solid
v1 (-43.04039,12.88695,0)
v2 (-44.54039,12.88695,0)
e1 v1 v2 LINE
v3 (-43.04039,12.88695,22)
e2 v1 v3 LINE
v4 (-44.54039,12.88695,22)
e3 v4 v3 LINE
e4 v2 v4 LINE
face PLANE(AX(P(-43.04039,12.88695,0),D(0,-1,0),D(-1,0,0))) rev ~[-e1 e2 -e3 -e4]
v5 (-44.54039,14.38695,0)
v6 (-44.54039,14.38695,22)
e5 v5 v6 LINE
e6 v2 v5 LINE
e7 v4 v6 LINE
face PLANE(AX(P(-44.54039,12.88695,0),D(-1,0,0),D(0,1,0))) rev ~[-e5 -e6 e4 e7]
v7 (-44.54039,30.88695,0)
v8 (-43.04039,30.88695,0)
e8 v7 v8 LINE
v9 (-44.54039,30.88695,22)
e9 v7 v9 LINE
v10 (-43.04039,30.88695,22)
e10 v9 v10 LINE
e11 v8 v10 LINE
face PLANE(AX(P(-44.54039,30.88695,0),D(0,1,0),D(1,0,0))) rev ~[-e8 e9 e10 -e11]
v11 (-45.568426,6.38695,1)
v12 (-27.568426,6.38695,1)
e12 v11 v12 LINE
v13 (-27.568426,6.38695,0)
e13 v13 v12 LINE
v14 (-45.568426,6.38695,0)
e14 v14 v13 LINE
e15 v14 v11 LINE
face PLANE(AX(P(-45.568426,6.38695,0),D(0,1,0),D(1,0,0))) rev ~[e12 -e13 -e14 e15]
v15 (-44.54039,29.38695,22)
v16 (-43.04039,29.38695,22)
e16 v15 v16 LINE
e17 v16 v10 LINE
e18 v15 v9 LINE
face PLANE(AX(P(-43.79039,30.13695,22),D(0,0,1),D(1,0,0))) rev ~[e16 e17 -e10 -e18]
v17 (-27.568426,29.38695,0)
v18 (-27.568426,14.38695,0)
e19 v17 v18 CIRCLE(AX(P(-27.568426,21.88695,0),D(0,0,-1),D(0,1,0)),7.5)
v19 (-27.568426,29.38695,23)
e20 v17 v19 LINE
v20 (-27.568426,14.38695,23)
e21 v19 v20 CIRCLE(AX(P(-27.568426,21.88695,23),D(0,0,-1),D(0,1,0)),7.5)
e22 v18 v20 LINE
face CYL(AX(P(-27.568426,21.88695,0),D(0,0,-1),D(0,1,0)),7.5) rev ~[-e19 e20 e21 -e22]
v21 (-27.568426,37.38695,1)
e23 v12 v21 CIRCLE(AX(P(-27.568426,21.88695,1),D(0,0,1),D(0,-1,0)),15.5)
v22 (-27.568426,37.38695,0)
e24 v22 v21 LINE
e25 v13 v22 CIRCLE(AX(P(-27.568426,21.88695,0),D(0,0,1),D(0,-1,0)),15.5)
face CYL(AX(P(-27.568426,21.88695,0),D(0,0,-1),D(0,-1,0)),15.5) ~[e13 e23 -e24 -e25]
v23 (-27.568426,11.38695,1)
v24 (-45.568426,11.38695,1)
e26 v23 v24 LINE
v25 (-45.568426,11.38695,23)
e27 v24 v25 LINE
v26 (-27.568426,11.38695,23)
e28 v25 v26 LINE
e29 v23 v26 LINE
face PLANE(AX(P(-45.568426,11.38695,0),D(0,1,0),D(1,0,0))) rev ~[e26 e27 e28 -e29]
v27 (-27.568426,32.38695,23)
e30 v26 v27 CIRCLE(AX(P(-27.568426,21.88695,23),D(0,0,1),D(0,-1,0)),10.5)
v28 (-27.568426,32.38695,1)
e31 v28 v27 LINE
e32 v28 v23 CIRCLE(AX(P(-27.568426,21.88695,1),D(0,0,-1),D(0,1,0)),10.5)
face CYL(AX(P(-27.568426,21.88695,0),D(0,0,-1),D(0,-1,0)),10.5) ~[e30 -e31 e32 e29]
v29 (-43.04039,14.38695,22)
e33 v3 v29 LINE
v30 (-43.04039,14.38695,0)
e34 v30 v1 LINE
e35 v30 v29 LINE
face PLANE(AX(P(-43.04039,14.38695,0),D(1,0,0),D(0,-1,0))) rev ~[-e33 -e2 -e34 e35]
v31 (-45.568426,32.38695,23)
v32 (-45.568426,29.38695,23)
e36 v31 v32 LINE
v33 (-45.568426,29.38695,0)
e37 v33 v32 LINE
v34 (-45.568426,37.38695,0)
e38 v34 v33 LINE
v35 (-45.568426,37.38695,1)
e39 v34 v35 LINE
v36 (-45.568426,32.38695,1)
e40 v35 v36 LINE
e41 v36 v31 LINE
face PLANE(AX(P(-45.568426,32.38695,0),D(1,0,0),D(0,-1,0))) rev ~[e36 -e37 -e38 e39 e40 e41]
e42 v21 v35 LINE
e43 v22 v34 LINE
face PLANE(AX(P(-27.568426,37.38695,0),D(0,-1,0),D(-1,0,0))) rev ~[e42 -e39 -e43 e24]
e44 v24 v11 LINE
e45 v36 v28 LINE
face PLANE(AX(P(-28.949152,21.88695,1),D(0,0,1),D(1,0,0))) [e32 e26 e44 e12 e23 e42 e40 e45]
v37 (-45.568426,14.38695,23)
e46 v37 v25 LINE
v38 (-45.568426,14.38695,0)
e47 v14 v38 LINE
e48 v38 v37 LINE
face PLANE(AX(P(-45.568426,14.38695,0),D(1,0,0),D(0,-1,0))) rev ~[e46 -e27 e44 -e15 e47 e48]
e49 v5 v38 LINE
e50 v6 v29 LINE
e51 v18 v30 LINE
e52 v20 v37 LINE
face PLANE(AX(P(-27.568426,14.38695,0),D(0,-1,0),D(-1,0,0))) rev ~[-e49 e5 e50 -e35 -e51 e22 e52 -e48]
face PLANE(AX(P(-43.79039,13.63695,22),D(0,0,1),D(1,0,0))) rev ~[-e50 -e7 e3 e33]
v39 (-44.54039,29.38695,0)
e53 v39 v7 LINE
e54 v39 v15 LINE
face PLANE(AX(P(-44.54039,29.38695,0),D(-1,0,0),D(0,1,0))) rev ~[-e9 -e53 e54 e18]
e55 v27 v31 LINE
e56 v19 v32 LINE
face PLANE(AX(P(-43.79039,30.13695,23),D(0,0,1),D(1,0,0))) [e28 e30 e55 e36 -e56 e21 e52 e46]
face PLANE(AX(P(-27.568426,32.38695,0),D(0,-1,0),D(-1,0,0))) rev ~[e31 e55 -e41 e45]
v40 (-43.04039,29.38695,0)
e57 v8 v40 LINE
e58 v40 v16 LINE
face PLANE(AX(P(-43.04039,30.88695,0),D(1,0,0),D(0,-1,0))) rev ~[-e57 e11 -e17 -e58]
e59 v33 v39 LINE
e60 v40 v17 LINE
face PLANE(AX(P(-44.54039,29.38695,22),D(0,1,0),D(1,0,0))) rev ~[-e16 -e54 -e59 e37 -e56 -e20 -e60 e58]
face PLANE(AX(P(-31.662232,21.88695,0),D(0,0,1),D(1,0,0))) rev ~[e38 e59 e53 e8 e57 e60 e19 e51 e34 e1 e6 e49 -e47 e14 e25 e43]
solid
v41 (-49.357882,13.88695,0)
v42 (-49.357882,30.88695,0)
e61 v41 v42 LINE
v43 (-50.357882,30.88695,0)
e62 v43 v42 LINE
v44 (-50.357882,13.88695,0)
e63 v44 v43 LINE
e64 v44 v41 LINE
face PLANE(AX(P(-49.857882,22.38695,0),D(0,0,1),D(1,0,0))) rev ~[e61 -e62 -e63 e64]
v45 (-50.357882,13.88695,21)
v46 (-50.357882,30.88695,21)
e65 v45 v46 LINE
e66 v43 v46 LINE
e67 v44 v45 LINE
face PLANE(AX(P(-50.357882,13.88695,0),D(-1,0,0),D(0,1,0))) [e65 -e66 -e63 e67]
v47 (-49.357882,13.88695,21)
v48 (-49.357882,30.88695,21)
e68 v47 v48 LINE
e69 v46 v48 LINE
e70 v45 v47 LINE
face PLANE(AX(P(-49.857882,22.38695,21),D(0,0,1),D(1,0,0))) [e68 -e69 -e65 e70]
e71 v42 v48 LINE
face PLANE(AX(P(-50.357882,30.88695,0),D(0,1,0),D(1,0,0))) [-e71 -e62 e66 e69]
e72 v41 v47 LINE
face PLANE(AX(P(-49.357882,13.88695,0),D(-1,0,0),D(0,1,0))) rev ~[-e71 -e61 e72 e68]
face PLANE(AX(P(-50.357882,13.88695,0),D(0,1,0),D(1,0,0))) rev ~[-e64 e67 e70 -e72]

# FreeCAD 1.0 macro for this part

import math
import FreeCAD as App
import Part
import Sketcher


def add_polygon(sketch, points):
    """Adds a closed chain of lines whose ends are joined by coincident constraints."""
    first, n = sketch.GeometryCount, len(points)
    for a, b in zip(points, points[1:] + points[:1]):
        sketch.addGeometry(Part.LineSegment(App.Vector(*a, 0), App.Vector(*b, 0)), False)
    for i in range(n):
        sketch.addConstraint(Sketcher.Constraint("Coincident", first + i, 2, first + (i + 1) % n, 1))

doc = App.newDocument("Part")
body = doc.addObject("PartDesign::Body", "Body")

# Sketch on XY plane
sketch1 = doc.addObject("Sketcher::SketchObject", "Sketch")
body.addObject(sketch1)
sketch1.AttachmentSupport = (doc.XY_Plane, [""])
sketch1.MapMode = "FlatFace"
sketch1.addGeometry(Part.LineSegment(App.Vector(-46, 37, 0), App.Vector(-46, 32, 0)), False)
sketch1.addGeometry(Part.LineSegment(App.Vector(-46, 32, 0), App.Vector(-28, 32, 0)), False)
sketch1.addGeometry(Part.ArcOfCircle(Part.Circle(App.Vector(-28, 22, 0), App.Vector(0, 0, 1), 10), math.radians(-90), math.radians(90)), False)
sketch1.addGeometry(Part.LineSegment(App.Vector(-28, 11, 0), App.Vector(-46, 11, 0)), False)
sketch1.addGeometry(Part.LineSegment(App.Vector(-46, 11, 0), App.Vector(-46, 6, 0)), False)
sketch1.addGeometry(Part.LineSegment(App.Vector(-46, 6, 0), App.Vector(-28, 6, 0)), False)
sketch1.addGeometry(Part.ArcOfCircle(Part.Circle(App.Vector(-28, 22, 0), App.Vector(0, 0, 1), 16), math.radians(-90), math.radians(90)), False)
sketch1.addGeometry(Part.LineSegment(App.Vector(-28, 37, 0), App.Vector(-46, 37, 0)), False)
sketch1.addConstraint(Sketcher.Constraint("Coincident", 0, 2, 1, 1))
sketch1.addConstraint(Sketcher.Constraint("Tangent", 1, 2, 2, 2))
sketch1.addConstraint(Sketcher.Constraint("Tangent", 2, 1, 3, 1))
sketch1.addConstraint(Sketcher.Constraint("Coincident", 3, 2, 4, 1))
sketch1.addConstraint(Sketcher.Constraint("Coincident", 4, 2, 5, 1))
sketch1.addConstraint(Sketcher.Constraint("Tangent", 5, 2, 6, 1))
sketch1.addConstraint(Sketcher.Constraint("Tangent", 6, 2, 7, 1))
sketch1.addConstraint(Sketcher.Constraint("Coincident", 7, 2, 0, 1))
sketch1.addConstraint(Sketcher.Constraint("Vertical", 0))
sketch1.addConstraint(Sketcher.Constraint("Horizontal", 1))
sketch1.addConstraint(Sketcher.Constraint("Horizontal", 3))
sketch1.addConstraint(Sketcher.Constraint("Vertical", 4))
sketch1.addConstraint(Sketcher.Constraint("Horizontal", 5))
sketch1.addConstraint(Sketcher.Constraint("Horizontal", 7))
sketch1.addConstraint(Sketcher.Constraint("Coincident", 6, 3, 2, 3))
sketch1.addConstraint(Sketcher.Constraint("Vertical", 0, 2, 3, 2))
sketch1.addConstraint(Sketcher.Constraint("Radius", 2, 10.5))
sketch1.addConstraint(Sketcher.Constraint("Radius", 6, 15.5))
sketch1.addConstraint(Sketcher.Constraint("DistanceX", 1, 1, 1, 2, 18.0))
sketch1.addConstraint(Sketcher.Constraint("DistanceY", -1, 1, 2, 3, 21.88695))
sketch1.addConstraint(Sketcher.Constraint("DistanceX", 2, 3, -1, 1, 27.568426))
pad1 = doc.addObject("PartDesign::Pad", "Pad")
body.addObject(pad1)
pad1.Profile = sketch1
pad1.Length = 1

# Sketch on XY plane
sketch2 = doc.addObject("Sketcher::SketchObject", "Sketch001")
body.addObject(sketch2)
sketch2.AttachmentSupport = (doc.XY_Plane, [""])
sketch2.MapMode = "FlatFace"
sketch2.addGeometry(Part.LineSegment(App.Vector(-45.6, 32.4, 0), App.Vector(-45.6, 29.4, 0)), False)
sketch2.addGeometry(Part.LineSegment(App.Vector(-45.6, 29.4, 0), App.Vector(-44.5, 29.4, 0)), False)
sketch2.addGeometry(Part.LineSegment(App.Vector(-44.5, 29.4, 0), App.Vector(-44.5, 30.9, 0)), False)
sketch2.addGeometry(Part.LineSegment(App.Vector(-44.5, 30.9, 0), App.Vector(-43, 30.9, 0)), False)
sketch2.addGeometry(Part.LineSegment(App.Vector(-43, 30.9, 0), App.Vector(-43, 29.4, 0)), False)
sketch2.addGeometry(Part.LineSegment(App.Vector(-43, 29.4, 0), App.Vector(-27.6, 29.4, 0)), False)
sketch2.addGeometry(Part.ArcOfCircle(Part.Circle(App.Vector(-27.6, 21.9, 0), App.Vector(0, 0, 1), 7.5), math.radians(-90), math.radians(90)), False)
sketch2.addGeometry(Part.LineSegment(App.Vector(-27.6, 14.4, 0), App.Vector(-43, 14.4, 0)), False)
sketch2.addGeometry(Part.LineSegment(App.Vector(-43, 14.4, 0), App.Vector(-43, 12.9, 0)), False)
sketch2.addGeometry(Part.LineSegment(App.Vector(-43, 12.9, 0), App.Vector(-44.5, 12.9, 0)), False)
sketch2.addGeometry(Part.LineSegment(App.Vector(-44.5, 12.9, 0), App.Vector(-44.5, 14.4, 0)), False)
sketch2.addGeometry(Part.LineSegment(App.Vector(-44.5, 14.4, 0), App.Vector(-45.6, 14.4, 0)), False)
sketch2.addGeometry(Part.LineSegment(App.Vector(-45.6, 14.4, 0), App.Vector(-45.6, 11.4, 0)), False)
sketch2.addGeometry(Part.LineSegment(App.Vector(-45.6, 11.4, 0), App.Vector(-27.6, 11.4, 0)), False)
sketch2.addGeometry(Part.ArcOfCircle(Part.Circle(App.Vector(-27.6, 21.9, 0), App.Vector(0, 0, 1), 10.5), math.radians(-90), math.radians(90)), False)
sketch2.addGeometry(Part.LineSegment(App.Vector(-27.6, 32.4, 0), App.Vector(-45.6, 32.4, 0)), False)
sketch2.addConstraint(Sketcher.Constraint("Coincident", 0, 2, 1, 1))
sketch2.addConstraint(Sketcher.Constraint("Coincident", 1, 2, 2, 1))
sketch2.addConstraint(Sketcher.Constraint("Coincident", 2, 2, 3, 1))
sketch2.addConstraint(Sketcher.Constraint("Coincident", 3, 2, 4, 1))
sketch2.addConstraint(Sketcher.Constraint("Coincident", 4, 2, 5, 1))
sketch2.addConstraint(Sketcher.Constraint("Tangent", 5, 2, 6, 2))
sketch2.addConstraint(Sketcher.Constraint("Tangent", 6, 1, 7, 1))
sketch2.addConstraint(Sketcher.Constraint("Coincident", 7, 2, 8, 1))
sketch2.addConstraint(Sketcher.Constraint("Coincident", 8, 2, 9, 1))
sketch2.addConstraint(Sketcher.Constraint("Coincident", 9, 2, 10, 1))
sketch2.addConstraint(Sketcher.Constraint("Coincident", 10, 2, 11, 1))
sketch2.addConstraint(Sketcher.Constraint("Coincident", 11, 2, 12, 1))
sketch2.addConstraint(Sketcher.Constraint("Coincident", 12, 2, 13, 1))
sketch2.addConstraint(Sketcher.Constraint("Tangent", 13, 2, 14, 1))
sketch2.addConstraint(Sketcher.Constraint("Tangent", 14, 2, 15, 1))
sketch2.addConstraint(Sketcher.Constraint("Coincident", 15, 2, 0, 1))
sketch2.addConstraint(Sketcher.Constraint("Vertical", 0))
sketch2.addConstraint(Sketcher.Constraint("Horizontal", 1))
sketch2.addConstraint(Sketcher.Constraint("Vertical", 2))
sketch2.addConstraint(Sketcher.Constraint("Horizontal", 3))
sketch2.addConstraint(Sketcher.Constraint("Vertical", 4))
sketch2.addConstraint(Sketcher.Constraint("Horizontal", 5))
sketch2.addConstraint(Sketcher.Constraint("Horizontal", 7))
sketch2.addConstraint(Sketcher.Constraint("Vertical", 8))
sketch2.addConstraint(Sketcher.Constraint("Horizontal", 9))
sketch2.addConstraint(Sketcher.Constraint("Vertical", 10))
sketch2.addConstraint(Sketcher.Constraint("Horizontal", 11))
sketch2.addConstraint(Sketcher.Constraint("Vertical", 12))
sketch2.addConstraint(Sketcher.Constraint("Horizontal", 13))
sketch2.addConstraint(Sketcher.Constraint("Horizontal", 15))
sketch2.addConstraint(Sketcher.Constraint("Coincident", 14, 3, 6, 3))
sketch2.addConstraint(Sketcher.Constraint("Horizontal", 1, 2, 4, 2))
sketch2.addConstraint(Sketcher.Constraint("Horizontal", 7, 2, 10, 2))
sketch2.addConstraint(Sketcher.Constraint("Vertical", 4, 2, 7, 2))
sketch2.addConstraint(Sketcher.Constraint("Vertical", 2, 2, 9, 2))
sketch2.addConstraint(Sketcher.Constraint("Vertical", 0, 2, 11, 2))
sketch2.addConstraint(Sketcher.Constraint("Equal", 9, 2))
sketch2.addConstraint(Sketcher.Constraint("Equal", 4, 8))
sketch2.addConstraint(Sketcher.Constraint("Radius", 6, 7.5))
sketch2.addConstraint(Sketcher.Constraint("Radius", 14, 10.5))
sketch2.addConstraint(Sketcher.Constraint("DistanceX", 13, 1, 13, 2, 18.0))
sketch2.addConstraint(Sketcher.Constraint("DistanceX", 3, 1, 3, 2, 1.5))
sketch2.addConstraint(Sketcher.Constraint("DistanceX", 1, 1, 1, 2, 1.028035))
sketch2.addConstraint(Sketcher.Constraint("DistanceY", -1, 1, 6, 3, 21.88695))
sketch2.addConstraint(Sketcher.Constraint("DistanceX", 1, 2, -1, 1, 44.54039))
pad2 = doc.addObject("PartDesign::Pad", "Pad001")
body.addObject(pad2)
pad2.Profile = sketch2
pad2.Length = 23

# Sketch on XY plane
sketch3 = doc.addObject("Sketcher::SketchObject", "Sketch002")
body.addObject(sketch3)
sketch3.AttachmentSupport = (doc.XY_Plane, [""])
sketch3.MapMode = "FlatFace"
sketch3.AttachmentOffset = App.Placement(App.Vector(0, 0, 22), App.Rotation())
add_polygon(sketch3, [(-44.5, 30.9), (-44.5, 29.4), (-43, 29.4), (-43, 30.9)])  # lines 0-3
add_polygon(sketch3, [(-44.5, 14.4), (-44.5, 12.9), (-43, 12.9), (-43, 14.4)])  # lines 4-7
sketch3.addConstraint(Sketcher.Constraint("Vertical", 0))
sketch3.addConstraint(Sketcher.Constraint("Horizontal", 1))
sketch3.addConstraint(Sketcher.Constraint("Vertical", 2))
sketch3.addConstraint(Sketcher.Constraint("Horizontal", 3))
sketch3.addConstraint(Sketcher.Constraint("Vertical", 4))
sketch3.addConstraint(Sketcher.Constraint("Horizontal", 5))
sketch3.addConstraint(Sketcher.Constraint("Vertical", 6))
sketch3.addConstraint(Sketcher.Constraint("Horizontal", 7))
sketch3.addConstraint(Sketcher.Constraint("Vertical", 3, 2, 4, 2))
sketch3.addConstraint(Sketcher.Constraint("Vertical", 2, 2, 5, 2))
sketch3.addConstraint(Sketcher.Constraint("Equal", 7, 0))
sketch3.addConstraint(Sketcher.Constraint("Equal", 2, 4))
sketch3.addConstraint(Sketcher.Constraint("DistanceX", 1, 1, 1, 2, 1.5))
sketch3.addConstraint(Sketcher.Constraint("DistanceY", 4, 2, 3, 2, 18.0))
sketch3.addConstraint(Sketcher.Constraint("DistanceX", 0, 2, -1, 1, 44.54039))
sketch3.addConstraint(Sketcher.Constraint("DistanceY", -1, 1, 0, 2, 29.38695))
pad3 = doc.addObject("PartDesign::Pad", "Pad002")
body.addObject(pad3)
pad3.Profile = sketch3
pad3.Length = 1
body2 = doc.addObject("PartDesign::Body", "Body001")

# Sketch on XY plane
sketch4 = doc.addObject("Sketcher::SketchObject", "Sketch003")
body2.addObject(sketch4)
sketch4.AttachmentSupport = (doc.getObject("XY_Plane001"), [""])
sketch4.MapMode = "FlatFace"
add_polygon(sketch4, [(-50.4, 30.9), (-50.4, 13.9), (-49.4, 13.9), (-49.4, 30.9)])  # lines 0-3
sketch4.addConstraint(Sketcher.Constraint("Vertical", 0))
sketch4.addConstraint(Sketcher.Constraint("Horizontal", 1))
sketch4.addConstraint(Sketcher.Constraint("Vertical", 2))
sketch4.addConstraint(Sketcher.Constraint("Horizontal", 3))
sketch4.addConstraint(Sketcher.Constraint("DistanceX", 1, 1, 1, 2, 1.0))
sketch4.addConstraint(Sketcher.Constraint("DistanceY", 0, 2, 0, 1, 17.0))
sketch4.addConstraint(Sketcher.Constraint("DistanceX", 0, 2, -1, 1, 50.357882))
sketch4.addConstraint(Sketcher.Constraint("DistanceY", -1, 1, 0, 2, 13.88695))
pad4 = doc.addObject("PartDesign::Pad", "Pad003")
body2.addObject(pad4)
pad4.Profile = sketch4
pad4.Length = 21

doc.recompute()
